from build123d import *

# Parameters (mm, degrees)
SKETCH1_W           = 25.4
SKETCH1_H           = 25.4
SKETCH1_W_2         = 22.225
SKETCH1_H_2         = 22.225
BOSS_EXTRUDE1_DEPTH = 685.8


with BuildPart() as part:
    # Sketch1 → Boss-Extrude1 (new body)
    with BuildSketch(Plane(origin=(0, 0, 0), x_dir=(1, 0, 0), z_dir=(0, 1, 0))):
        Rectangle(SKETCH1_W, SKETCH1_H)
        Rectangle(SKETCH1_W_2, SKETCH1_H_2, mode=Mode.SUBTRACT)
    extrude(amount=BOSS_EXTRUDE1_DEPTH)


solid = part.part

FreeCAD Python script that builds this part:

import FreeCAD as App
import Part
import Sketcher

V = App.Vector
Q = App.Units.Quantity

doc = App.newDocument("Part")
body = doc.addObject("PartDesign::Body", "Body")

# Sketch on XZ plane
sketch1 = doc.addObject("Sketcher::SketchObject", "Sketch")
body.addObject(sketch1)
sketch1.AttachmentSupport = (doc.XZ_Plane, [""])
sketch1.MapMode = "FlatFace"
sketch1.addGeometry([
    Part.LineSegment(V(-13, -13, 0), V(-13, 13, 0)),  # 0
    Part.LineSegment(V(-13, 13, 0), V(13, 13, 0)),  # 1
    Part.LineSegment(V(13, 13, 0), V(13, -13, 0)),  # 2
    Part.LineSegment(V(13, -13, 0), V(-13, -13, 0)),  # 3
    Part.LineSegment(V(11, 11, 0), V(-11, 11, 0)),  # 4
    Part.LineSegment(V(-11, 11, 0), V(-11, -11, 0)),  # 5
    Part.LineSegment(V(-11, -11, 0), V(11, -11, 0)),  # 6
    Part.LineSegment(V(11, -11, 0), V(11, 11, 0)),  # 7
], False)
sketch1.addConstraint([
    Sketcher.Constraint("Coincident", 0, 2, 1, 1),
    Sketcher.Constraint("Coincident", 1, 2, 2, 1),
    Sketcher.Constraint("Coincident", 2, 2, 3, 1),
    Sketcher.Constraint("Coincident", 3, 2, 0, 1),
    Sketcher.Constraint("Coincident", 4, 2, 5, 1),
    Sketcher.Constraint("Coincident", 5, 2, 6, 1),
    Sketcher.Constraint("Coincident", 6, 2, 7, 1),
    Sketcher.Constraint("Coincident", 7, 2, 4, 1),
    Sketcher.Constraint("Vertical", 0),
    Sketcher.Constraint("Horizontal", 1),
    Sketcher.Constraint("Vertical", 2),
    Sketcher.Constraint("Horizontal", 3),
    Sketcher.Constraint("Horizontal", 4),
    Sketcher.Constraint("Vertical", 5),
    Sketcher.Constraint("Horizontal", 6),
    Sketcher.Constraint("Vertical", 7),
    Sketcher.Constraint("Symmetric", 0, 2, 2, 2, -1, 1),
    Sketcher.Constraint("Symmetric", 4, 2, 6, 2, -1, 1),
    Sketcher.Constraint("Equal", 3, 0),
    Sketcher.Constraint("Equal", 6, 5),
    Sketcher.Constraint("DistanceX", 1, 1, 1, 2, Q("1 in")),
    Sketcher.Constraint("DistanceX", 4, 2, 4, 1, Q("0.875 in")),
])
pad1 = doc.addObject("PartDesign::Pad", "Pad")
body.addObject(pad1)
pad1.Profile = sketch1
pad1.Length = Q("27 in")
pad1.Reversed = True

doc.recompute()
